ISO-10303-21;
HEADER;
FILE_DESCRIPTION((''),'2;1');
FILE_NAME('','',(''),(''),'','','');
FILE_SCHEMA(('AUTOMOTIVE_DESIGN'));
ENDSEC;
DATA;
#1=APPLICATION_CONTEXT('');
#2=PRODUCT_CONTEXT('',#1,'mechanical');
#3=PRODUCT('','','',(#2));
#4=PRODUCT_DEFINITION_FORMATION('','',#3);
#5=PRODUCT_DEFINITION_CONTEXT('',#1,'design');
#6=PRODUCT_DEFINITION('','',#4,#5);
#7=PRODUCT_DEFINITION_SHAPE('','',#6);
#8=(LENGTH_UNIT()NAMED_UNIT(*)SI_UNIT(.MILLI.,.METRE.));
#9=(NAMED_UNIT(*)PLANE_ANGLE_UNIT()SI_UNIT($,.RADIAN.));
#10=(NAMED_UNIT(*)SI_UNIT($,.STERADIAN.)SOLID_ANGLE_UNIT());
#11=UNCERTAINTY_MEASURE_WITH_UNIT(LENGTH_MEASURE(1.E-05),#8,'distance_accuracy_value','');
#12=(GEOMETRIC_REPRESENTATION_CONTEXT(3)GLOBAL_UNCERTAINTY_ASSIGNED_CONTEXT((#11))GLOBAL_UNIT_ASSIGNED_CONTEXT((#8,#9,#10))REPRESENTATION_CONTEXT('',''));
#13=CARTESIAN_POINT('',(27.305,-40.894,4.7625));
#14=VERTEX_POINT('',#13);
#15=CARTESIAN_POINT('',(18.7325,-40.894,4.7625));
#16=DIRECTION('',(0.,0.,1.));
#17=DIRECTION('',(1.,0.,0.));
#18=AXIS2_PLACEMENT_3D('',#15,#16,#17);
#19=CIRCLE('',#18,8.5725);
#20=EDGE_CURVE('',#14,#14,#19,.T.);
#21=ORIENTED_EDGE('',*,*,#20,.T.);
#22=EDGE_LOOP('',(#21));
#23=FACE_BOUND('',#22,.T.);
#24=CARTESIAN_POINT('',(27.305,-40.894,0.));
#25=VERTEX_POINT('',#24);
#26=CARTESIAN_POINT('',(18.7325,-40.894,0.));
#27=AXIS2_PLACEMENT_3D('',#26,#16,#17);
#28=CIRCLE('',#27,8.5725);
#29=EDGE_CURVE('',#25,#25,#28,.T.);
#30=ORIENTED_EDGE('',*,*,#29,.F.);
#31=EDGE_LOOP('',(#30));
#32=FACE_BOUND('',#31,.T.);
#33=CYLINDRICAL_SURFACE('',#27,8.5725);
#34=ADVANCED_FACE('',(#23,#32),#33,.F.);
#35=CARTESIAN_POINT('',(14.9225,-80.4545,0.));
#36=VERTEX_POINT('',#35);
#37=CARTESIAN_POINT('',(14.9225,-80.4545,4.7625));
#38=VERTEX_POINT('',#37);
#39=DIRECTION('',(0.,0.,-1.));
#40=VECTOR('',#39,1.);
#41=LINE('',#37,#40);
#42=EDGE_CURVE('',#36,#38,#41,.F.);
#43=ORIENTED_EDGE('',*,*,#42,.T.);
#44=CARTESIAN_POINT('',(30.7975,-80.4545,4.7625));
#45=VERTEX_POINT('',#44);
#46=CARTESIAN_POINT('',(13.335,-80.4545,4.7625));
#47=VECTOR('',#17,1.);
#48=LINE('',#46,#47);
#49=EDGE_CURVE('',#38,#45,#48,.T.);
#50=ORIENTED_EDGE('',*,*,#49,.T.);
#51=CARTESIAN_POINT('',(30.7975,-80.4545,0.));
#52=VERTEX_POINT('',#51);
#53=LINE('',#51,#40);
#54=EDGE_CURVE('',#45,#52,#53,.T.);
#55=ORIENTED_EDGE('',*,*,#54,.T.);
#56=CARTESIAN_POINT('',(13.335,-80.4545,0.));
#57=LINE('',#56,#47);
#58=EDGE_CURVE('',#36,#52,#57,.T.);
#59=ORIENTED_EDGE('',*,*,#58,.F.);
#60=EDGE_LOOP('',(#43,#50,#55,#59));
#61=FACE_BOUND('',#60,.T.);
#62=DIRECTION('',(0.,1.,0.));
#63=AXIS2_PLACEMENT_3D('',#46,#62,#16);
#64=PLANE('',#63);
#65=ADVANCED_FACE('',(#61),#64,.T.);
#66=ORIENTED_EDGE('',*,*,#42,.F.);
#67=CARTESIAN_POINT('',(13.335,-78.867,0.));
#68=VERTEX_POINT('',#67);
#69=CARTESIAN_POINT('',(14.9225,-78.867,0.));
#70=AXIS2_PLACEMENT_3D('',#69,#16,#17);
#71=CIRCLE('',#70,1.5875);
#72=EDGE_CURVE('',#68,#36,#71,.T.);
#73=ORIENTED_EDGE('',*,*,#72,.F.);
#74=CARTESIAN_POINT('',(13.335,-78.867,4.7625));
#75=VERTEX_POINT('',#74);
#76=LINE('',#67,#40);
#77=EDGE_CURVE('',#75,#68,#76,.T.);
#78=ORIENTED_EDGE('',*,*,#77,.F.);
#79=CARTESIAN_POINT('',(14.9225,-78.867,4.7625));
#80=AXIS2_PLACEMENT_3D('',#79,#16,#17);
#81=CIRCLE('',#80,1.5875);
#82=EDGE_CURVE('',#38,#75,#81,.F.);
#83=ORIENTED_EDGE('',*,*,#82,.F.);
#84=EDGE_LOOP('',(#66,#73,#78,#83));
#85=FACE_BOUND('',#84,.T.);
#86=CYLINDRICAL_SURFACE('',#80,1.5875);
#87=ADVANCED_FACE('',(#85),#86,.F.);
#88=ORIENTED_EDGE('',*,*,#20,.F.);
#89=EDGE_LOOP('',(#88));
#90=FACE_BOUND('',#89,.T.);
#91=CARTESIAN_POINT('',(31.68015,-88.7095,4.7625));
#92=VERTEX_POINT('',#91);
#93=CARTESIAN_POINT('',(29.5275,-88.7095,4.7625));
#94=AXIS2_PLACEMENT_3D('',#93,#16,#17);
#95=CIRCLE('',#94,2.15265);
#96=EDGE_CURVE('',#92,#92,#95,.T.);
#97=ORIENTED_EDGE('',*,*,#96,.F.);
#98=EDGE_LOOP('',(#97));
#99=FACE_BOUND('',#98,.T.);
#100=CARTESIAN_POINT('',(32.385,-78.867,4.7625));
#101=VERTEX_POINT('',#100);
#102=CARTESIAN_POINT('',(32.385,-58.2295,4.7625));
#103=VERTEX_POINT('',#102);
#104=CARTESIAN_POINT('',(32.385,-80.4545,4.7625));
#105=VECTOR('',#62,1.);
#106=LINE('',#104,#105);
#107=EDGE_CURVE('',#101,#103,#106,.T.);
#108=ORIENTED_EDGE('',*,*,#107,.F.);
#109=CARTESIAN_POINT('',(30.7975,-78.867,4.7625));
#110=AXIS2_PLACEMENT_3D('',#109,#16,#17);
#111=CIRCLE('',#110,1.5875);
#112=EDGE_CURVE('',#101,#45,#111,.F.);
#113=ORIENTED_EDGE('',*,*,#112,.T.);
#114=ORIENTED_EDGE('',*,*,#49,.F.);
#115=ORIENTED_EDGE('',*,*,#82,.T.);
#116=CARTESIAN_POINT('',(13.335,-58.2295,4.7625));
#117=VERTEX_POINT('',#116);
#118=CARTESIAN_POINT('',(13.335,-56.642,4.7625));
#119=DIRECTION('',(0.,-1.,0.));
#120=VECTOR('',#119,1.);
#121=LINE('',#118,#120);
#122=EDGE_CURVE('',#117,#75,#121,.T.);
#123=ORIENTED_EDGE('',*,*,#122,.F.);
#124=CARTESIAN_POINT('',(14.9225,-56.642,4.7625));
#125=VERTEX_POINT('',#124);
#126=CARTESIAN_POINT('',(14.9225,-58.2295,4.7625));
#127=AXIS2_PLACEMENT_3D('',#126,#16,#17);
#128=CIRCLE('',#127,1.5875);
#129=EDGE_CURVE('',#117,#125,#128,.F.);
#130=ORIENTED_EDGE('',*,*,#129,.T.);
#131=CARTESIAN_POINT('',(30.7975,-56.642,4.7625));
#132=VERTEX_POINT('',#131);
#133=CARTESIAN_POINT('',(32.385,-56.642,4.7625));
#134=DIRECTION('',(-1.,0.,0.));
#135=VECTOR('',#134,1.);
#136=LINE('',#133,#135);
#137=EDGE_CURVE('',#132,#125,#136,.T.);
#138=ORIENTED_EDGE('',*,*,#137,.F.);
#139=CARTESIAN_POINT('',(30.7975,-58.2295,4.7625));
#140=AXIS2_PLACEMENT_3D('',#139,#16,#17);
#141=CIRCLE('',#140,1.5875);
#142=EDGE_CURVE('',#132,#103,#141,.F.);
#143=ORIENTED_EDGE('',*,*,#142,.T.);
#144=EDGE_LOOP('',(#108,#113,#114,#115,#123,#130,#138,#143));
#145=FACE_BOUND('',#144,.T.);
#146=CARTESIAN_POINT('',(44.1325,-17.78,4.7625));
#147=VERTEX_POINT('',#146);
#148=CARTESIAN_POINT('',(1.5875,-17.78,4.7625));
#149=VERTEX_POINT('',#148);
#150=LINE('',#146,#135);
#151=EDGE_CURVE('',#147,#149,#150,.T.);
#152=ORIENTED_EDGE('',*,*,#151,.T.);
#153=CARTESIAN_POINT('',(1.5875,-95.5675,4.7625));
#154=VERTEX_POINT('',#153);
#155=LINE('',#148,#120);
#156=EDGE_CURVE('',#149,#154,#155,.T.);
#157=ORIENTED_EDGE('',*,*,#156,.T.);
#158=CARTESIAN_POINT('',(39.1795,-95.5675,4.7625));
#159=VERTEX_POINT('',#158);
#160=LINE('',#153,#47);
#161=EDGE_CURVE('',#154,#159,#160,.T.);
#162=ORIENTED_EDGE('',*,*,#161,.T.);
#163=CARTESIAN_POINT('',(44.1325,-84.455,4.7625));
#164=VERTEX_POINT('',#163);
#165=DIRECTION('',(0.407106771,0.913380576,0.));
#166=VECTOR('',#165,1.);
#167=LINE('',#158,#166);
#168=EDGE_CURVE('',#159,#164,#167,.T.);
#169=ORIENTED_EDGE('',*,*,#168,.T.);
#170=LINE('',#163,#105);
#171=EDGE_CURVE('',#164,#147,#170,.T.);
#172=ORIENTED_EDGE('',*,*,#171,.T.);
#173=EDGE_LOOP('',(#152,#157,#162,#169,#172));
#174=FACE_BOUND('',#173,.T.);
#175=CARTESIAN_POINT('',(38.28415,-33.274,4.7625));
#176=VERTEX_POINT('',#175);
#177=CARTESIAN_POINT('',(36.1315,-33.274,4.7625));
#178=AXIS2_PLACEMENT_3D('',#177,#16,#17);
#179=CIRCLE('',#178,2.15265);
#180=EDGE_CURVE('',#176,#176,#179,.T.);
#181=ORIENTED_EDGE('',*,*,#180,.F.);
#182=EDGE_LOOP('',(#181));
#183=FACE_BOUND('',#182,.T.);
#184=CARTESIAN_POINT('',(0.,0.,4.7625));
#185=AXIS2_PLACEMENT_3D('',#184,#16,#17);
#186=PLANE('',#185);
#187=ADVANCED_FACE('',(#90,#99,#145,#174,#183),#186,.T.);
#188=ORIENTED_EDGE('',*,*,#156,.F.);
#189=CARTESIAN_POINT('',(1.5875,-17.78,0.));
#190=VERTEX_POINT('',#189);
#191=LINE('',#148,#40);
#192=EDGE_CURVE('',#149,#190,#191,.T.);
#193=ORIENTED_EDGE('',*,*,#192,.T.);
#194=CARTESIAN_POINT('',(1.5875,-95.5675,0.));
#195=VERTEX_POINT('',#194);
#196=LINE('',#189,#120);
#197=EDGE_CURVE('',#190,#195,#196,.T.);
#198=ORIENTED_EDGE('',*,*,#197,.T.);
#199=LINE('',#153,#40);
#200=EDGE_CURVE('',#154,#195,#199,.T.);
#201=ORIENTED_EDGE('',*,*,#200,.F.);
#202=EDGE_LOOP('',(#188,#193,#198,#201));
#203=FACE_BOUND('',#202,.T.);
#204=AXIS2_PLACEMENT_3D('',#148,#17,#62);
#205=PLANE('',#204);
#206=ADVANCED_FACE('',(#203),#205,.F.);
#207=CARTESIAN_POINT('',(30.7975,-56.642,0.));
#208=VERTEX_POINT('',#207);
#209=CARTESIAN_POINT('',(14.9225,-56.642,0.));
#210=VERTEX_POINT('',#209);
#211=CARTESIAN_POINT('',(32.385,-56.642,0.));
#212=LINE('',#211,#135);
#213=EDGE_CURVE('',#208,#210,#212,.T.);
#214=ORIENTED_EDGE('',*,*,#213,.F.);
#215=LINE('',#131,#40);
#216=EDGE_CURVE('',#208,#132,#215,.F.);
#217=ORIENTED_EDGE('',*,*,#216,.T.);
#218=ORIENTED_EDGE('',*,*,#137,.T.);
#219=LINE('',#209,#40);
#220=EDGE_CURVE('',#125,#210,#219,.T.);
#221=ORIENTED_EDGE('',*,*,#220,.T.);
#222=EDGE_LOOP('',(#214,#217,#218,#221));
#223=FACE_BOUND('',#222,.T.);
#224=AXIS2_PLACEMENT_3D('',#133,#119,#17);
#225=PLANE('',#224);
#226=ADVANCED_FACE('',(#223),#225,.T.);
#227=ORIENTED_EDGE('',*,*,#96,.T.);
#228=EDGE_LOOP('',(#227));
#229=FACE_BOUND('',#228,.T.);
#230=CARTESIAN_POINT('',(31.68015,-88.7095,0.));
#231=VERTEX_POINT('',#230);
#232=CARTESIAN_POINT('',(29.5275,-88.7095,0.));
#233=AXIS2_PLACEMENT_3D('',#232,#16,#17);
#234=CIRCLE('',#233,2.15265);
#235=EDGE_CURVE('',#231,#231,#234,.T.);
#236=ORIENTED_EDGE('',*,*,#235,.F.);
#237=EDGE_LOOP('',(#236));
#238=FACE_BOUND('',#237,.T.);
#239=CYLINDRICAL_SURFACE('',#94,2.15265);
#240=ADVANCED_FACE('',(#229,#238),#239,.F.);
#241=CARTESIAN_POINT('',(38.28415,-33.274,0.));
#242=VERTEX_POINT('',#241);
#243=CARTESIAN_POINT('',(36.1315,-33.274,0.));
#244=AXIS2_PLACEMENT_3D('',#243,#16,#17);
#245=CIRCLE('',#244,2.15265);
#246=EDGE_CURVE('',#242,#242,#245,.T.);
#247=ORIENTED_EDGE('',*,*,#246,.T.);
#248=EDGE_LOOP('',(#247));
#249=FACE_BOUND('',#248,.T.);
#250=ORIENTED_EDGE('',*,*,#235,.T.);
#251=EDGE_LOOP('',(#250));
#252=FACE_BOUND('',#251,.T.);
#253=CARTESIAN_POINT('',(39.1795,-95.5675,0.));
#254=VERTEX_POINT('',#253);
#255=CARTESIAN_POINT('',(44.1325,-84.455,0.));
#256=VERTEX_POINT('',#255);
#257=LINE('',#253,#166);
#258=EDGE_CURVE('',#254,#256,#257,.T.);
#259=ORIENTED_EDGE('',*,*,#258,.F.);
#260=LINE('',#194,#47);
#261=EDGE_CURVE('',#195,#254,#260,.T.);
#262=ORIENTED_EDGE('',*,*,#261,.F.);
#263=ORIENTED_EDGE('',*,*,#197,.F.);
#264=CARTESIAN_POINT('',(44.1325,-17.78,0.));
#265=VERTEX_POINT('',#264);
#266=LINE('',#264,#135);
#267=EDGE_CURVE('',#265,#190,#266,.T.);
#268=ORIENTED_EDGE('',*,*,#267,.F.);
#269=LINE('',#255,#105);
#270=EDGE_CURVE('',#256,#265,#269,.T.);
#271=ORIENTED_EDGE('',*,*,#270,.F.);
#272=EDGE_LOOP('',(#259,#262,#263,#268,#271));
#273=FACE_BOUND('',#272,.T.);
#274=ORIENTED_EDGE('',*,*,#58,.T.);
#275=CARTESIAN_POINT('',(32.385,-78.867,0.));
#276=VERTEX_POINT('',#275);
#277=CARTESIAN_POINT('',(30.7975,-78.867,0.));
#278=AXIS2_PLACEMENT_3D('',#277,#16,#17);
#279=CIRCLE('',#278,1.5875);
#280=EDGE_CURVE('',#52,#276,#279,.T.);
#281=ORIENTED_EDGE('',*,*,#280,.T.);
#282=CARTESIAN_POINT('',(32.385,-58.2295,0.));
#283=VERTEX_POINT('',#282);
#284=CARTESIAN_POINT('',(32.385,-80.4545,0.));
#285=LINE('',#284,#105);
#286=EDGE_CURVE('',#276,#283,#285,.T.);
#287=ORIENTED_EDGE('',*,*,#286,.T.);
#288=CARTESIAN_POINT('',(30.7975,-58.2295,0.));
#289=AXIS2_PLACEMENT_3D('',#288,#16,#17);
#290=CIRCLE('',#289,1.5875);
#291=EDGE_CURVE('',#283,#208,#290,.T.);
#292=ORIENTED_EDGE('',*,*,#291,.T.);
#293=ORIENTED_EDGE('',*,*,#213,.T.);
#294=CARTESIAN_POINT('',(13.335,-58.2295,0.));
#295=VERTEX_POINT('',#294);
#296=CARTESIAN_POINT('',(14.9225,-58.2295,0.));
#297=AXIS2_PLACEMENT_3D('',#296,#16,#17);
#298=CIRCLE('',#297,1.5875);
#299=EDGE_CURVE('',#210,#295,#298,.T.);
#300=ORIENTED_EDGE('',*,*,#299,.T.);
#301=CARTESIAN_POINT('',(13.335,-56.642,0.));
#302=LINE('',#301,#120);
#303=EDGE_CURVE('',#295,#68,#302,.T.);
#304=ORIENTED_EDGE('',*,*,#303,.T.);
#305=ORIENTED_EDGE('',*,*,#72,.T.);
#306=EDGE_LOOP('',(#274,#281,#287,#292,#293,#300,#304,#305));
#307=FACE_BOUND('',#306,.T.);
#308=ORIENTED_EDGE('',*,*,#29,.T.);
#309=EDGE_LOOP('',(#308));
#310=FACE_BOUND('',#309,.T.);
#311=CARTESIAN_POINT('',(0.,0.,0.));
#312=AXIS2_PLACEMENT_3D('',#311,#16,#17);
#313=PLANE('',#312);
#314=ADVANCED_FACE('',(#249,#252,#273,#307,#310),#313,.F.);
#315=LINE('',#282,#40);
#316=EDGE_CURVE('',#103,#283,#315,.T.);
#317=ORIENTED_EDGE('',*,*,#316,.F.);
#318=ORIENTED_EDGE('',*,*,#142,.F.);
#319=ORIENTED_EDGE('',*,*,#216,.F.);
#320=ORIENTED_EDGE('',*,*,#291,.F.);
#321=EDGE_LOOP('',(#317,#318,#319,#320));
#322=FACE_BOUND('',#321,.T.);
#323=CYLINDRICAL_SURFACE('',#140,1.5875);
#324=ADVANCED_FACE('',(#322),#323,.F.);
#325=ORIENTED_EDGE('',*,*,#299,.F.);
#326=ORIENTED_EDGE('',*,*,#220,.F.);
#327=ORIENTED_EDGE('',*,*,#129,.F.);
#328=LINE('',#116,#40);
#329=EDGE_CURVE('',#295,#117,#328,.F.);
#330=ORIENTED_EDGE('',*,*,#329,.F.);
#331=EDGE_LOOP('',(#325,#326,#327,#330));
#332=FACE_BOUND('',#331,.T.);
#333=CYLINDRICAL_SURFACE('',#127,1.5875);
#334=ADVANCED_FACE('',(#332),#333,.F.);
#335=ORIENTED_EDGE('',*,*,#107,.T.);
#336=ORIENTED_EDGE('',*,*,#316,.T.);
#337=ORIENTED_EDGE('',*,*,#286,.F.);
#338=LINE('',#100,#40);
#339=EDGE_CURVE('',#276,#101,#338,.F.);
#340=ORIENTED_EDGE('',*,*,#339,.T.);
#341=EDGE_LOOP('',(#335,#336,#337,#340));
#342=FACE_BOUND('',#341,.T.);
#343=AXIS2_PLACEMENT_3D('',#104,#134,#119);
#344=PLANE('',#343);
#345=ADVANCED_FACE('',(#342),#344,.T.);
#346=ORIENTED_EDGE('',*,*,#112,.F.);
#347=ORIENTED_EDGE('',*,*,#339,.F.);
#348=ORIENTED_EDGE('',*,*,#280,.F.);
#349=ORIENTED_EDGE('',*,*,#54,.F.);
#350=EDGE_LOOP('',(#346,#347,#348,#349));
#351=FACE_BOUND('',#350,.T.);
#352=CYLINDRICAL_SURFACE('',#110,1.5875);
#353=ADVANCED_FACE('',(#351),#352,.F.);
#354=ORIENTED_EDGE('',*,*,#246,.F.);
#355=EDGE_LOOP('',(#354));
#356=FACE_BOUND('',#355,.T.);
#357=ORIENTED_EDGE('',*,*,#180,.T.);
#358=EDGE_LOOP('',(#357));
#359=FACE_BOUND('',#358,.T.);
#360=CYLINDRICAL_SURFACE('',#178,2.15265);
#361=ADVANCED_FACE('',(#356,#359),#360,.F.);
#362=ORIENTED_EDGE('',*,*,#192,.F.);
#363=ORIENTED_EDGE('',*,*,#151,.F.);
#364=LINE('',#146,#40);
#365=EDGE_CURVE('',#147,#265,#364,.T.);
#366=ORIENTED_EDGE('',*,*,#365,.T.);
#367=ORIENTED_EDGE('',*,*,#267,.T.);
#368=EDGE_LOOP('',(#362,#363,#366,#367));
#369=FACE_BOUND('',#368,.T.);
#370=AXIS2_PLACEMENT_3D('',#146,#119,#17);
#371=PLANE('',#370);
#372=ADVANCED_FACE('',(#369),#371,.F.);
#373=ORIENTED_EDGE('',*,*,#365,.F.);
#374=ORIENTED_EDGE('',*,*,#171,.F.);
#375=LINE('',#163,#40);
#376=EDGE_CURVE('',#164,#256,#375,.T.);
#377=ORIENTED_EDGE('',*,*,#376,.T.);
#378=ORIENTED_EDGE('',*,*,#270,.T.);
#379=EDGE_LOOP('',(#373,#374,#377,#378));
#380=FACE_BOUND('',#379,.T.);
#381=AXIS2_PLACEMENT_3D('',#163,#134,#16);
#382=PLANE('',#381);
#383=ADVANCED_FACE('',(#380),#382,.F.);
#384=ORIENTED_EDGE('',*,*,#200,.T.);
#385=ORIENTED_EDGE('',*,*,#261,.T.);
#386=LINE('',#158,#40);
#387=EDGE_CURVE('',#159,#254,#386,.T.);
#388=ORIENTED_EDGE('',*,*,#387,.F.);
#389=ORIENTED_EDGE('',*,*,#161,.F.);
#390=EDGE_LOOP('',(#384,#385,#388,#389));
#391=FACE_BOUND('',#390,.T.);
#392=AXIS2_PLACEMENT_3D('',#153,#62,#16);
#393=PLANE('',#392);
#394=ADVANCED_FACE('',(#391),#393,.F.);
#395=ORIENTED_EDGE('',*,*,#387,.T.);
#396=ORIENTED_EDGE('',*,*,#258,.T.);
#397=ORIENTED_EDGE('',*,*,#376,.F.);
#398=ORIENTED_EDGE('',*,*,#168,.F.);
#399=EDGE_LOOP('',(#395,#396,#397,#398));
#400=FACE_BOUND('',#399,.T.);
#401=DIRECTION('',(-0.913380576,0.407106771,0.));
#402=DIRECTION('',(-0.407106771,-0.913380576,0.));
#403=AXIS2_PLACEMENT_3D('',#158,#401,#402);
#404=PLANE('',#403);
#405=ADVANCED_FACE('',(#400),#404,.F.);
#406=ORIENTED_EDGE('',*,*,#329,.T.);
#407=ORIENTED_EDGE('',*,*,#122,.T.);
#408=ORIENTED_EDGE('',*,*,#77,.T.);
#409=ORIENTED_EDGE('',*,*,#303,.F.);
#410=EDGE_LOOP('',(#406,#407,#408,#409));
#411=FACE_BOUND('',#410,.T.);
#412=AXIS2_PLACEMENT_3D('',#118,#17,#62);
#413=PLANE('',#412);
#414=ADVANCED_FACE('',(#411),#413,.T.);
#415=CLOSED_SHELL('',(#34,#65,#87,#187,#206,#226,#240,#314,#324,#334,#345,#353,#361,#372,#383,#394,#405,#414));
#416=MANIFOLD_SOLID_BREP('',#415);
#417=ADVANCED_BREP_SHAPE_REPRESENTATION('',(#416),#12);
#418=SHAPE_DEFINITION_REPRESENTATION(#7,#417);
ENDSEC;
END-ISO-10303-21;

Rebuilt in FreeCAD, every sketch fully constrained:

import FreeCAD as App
import Part
import Sketcher

V = App.Vector
Q = App.Units.Quantity


def edges_at(feature, points):
    """Names of the edges that pass closest to the given points."""
    edges = feature.Shape.Edges
    near = lambda p: min(range(len(edges)), key=lambda i: edges[i].distToShape(Part.Vertex(*p))[0])
    return sorted({f"Edge{near(p) + 1}" for p in points})

doc = App.newDocument("Part")
body = doc.addObject("PartDesign::Body", "Body")

# Sketch on XY plane
sketch1 = doc.addObject("Sketcher::SketchObject", "Sketch")
body.addObject(sketch1)
sketch1.AttachmentSupport = (doc.XY_Plane, [""])
sketch1.MapMode = "FlatFace"
sketch1.addGeometry(Part.LineSegment(V(1.5875, -17.78, 0), V(1.5875, -95.5675, 0)), False)
sketch1.addGeometry(Part.LineSegment(V(1.5875, -95.5675, 0), V(39.1795, -95.5675, 0)), False)
sketch1.addGeometry(Part.LineSegment(V(39.1795, -95.5675, 0), V(44.1325, -84.455, 0)), False)
sketch1.addGeometry(Part.LineSegment(V(44.1325, -84.455, 0), V(44.1325, -17.78, 0)), False)
sketch1.addGeometry(Part.LineSegment(V(44.1325, -17.78, 0), V(1.5875, -17.78, 0)), False)
sketch1.addGeometry(Part.LineSegment(V(32.385, -80.4545, 0), V(13.335, -80.4545, 0)), False)
sketch1.addGeometry(Part.LineSegment(V(13.335, -80.4545, 0), V(13.335, -56.642, 0)), False)
sketch1.addGeometry(Part.LineSegment(V(13.335, -56.642, 0), V(32.385, -56.642, 0)), False)
sketch1.addGeometry(Part.LineSegment(V(32.385, -56.642, 0), V(32.385, -80.4545, 0)), False)
sketch1.addConstraint(Sketcher.Constraint("Coincident", 0, 2, 1, 1))
sketch1.addConstraint(Sketcher.Constraint("Coincident", 1, 2, 2, 1))
sketch1.addConstraint(Sketcher.Constraint("Coincident", 2, 2, 3, 1))
sketch1.addConstraint(Sketcher.Constraint("Coincident", 3, 2, 4, 1))
sketch1.addConstraint(Sketcher.Constraint("Coincident", 4, 2, 0, 1))
sketch1.addConstraint(Sketcher.Constraint("Coincident", 5, 2, 6, 1))
sketch1.addConstraint(Sketcher.Constraint("Coincident", 6, 2, 7, 1))
sketch1.addConstraint(Sketcher.Constraint("Coincident", 7, 2, 8, 1))
sketch1.addConstraint(Sketcher.Constraint("Coincident", 8, 2, 5, 1))
sketch1.addConstraint(Sketcher.Constraint("Vertical", 0))
sketch1.addConstraint(Sketcher.Constraint("Horizontal", 1))
sketch1.addConstraint(Sketcher.Constraint("Vertical", 3))
sketch1.addConstraint(Sketcher.Constraint("Horizontal", 4))
sketch1.addConstraint(Sketcher.Constraint("Horizontal", 5))
sketch1.addConstraint(Sketcher.Constraint("Vertical", 6))
sketch1.addConstraint(Sketcher.Constraint("Horizontal", 7))
sketch1.addConstraint(Sketcher.Constraint("Vertical", 8))
sketch1.addConstraint(Sketcher.Constraint("DistanceX", 1, 1, 1, 2, Q("1.48 in")))
sketch1.addConstraint(Sketcher.Constraint("DistanceX", 5, 2, 5, 1, Q("0.75 in")))
sketch1.addConstraint(Sketcher.Constraint("DistanceY", 3, 2, -1, 1, Q("0.7 in")))
sketch1.addConstraint(Sketcher.Constraint("DistanceX", 4, 2, 4, 1, Q("1.675 in")))
sketch1.addConstraint(Sketcher.Constraint("DistanceY", 0, 2, 0, 1, Q("3.0625 in")))
sketch1.addConstraint(Sketcher.Constraint("DistanceY", 3, 1, 3, 2, Q("2.625 in")))
sketch1.addConstraint(Sketcher.Constraint("DistanceY", 6, 1, 6, 2, Q("0.9375 in")))
sketch1.addConstraint(Sketcher.Constraint("DistanceY", 6, 2, -1, 1, Q("2.23 in")))
sketch1.addConstraint(Sketcher.Constraint("DistanceX", -1, 1, 0, 2, Q("0.0625 in")))
sketch1.addConstraint(Sketcher.Constraint("DistanceX", -1, 1, 5, 2, Q("0.525 in")))
pad1 = doc.addObject("PartDesign::Pad", "Pad")
body.addObject(pad1)
pad1.Profile = sketch1
pad1.Length = Q("0.1875 in")

# Sketch on XY plane
sketch2 = doc.addObject("Sketcher::SketchObject", "Sketch001")
body.addObject(sketch2)
sketch2.AttachmentSupport = (doc.XY_Plane, [""])
sketch2.MapMode = "FlatFace"
sketch2.AttachmentOffset = App.Placement(V(0, 0, 0.1875 * 25.4), App.Rotation())
sketch2.addGeometry(Part.Circle(V(18.7325, -40.894, 0), V(0, 0, 1), 8.5725), False)
sketch2.addConstraint(Sketcher.Constraint("Diameter", 0, Q("0.675 in")))
sketch2.addConstraint(Sketcher.Constraint("DistanceY", 0, 3, -1, 1, Q("1.61 in")))
sketch2.addConstraint(Sketcher.Constraint("DistanceX", -1, 1, 0, 3, Q("0.7375 in")))
pocket1 = doc.addObject("PartDesign::Pocket", "Pocket")
body.addObject(pocket1)
pocket1.Profile = sketch2
pocket1.Type = "ThroughAll"

# Sketch on XY plane
sketch3 = doc.addObject("Sketcher::SketchObject", "Sketch002")
body.addObject(sketch3)
sketch3.AttachmentSupport = (doc.XY_Plane, [""])
sketch3.MapMode = "FlatFace"
sketch3.AttachmentOffset = App.Placement(V(0, 0, 0.1875 * 25.4), App.Rotation())
sketch3.addGeometry(Part.Circle(V(36.1315, -33.274, 0), V(0, 0, 1), 2.15265), False)
sketch3.addGeometry(Part.Circle(V(29.5275, -88.7095, 0), V(0, 0, 1), 2.15265), False)
sketch3.addConstraint(Sketcher.Constraint("Equal", 0, 1))
sketch3.addConstraint(Sketcher.Constraint("Diameter", 0, Q("0.1695 in")))
sketch3.addConstraint(Sketcher.Constraint("DistanceY", 0, 3, -1, 1, Q("1.31 in")))
sketch3.addConstraint(Sketcher.Constraint("DistanceX", 1, 3, 0, 3, Q("0.26 in")))
sketch3.addConstraint(Sketcher.Constraint("DistanceX", -1, 1, 0, 3, Q("1.4225 in")))
sketch3.addConstraint(Sketcher.Constraint("DistanceY", 1, 3, -1, 1, Q("3.4925 in")))
doc.recompute()
hole = doc.addObject("PartDesign::Hole", "Hole")
body.addObject(hole)
hole.Profile = sketch3
hole.ThreadType = "None"
hole.Diameter = Q("0.1695 in")
hole.DepthType = "ThroughAll"
doc.recompute()

fillet = doc.addObject("PartDesign::Fillet", "Fillet")
body.addObject(fillet)
fillet.Base = (hole, edges_at(hole, [
    (13.335, -80.454, 2.381),
    (32.385, -80.454, 2.381),
    (32.385, -56.642, 2.381),
    (13.335, -56.642, 2.381),
]))
fillet.Radius = Q("0.0625 in")

doc.recompute()
